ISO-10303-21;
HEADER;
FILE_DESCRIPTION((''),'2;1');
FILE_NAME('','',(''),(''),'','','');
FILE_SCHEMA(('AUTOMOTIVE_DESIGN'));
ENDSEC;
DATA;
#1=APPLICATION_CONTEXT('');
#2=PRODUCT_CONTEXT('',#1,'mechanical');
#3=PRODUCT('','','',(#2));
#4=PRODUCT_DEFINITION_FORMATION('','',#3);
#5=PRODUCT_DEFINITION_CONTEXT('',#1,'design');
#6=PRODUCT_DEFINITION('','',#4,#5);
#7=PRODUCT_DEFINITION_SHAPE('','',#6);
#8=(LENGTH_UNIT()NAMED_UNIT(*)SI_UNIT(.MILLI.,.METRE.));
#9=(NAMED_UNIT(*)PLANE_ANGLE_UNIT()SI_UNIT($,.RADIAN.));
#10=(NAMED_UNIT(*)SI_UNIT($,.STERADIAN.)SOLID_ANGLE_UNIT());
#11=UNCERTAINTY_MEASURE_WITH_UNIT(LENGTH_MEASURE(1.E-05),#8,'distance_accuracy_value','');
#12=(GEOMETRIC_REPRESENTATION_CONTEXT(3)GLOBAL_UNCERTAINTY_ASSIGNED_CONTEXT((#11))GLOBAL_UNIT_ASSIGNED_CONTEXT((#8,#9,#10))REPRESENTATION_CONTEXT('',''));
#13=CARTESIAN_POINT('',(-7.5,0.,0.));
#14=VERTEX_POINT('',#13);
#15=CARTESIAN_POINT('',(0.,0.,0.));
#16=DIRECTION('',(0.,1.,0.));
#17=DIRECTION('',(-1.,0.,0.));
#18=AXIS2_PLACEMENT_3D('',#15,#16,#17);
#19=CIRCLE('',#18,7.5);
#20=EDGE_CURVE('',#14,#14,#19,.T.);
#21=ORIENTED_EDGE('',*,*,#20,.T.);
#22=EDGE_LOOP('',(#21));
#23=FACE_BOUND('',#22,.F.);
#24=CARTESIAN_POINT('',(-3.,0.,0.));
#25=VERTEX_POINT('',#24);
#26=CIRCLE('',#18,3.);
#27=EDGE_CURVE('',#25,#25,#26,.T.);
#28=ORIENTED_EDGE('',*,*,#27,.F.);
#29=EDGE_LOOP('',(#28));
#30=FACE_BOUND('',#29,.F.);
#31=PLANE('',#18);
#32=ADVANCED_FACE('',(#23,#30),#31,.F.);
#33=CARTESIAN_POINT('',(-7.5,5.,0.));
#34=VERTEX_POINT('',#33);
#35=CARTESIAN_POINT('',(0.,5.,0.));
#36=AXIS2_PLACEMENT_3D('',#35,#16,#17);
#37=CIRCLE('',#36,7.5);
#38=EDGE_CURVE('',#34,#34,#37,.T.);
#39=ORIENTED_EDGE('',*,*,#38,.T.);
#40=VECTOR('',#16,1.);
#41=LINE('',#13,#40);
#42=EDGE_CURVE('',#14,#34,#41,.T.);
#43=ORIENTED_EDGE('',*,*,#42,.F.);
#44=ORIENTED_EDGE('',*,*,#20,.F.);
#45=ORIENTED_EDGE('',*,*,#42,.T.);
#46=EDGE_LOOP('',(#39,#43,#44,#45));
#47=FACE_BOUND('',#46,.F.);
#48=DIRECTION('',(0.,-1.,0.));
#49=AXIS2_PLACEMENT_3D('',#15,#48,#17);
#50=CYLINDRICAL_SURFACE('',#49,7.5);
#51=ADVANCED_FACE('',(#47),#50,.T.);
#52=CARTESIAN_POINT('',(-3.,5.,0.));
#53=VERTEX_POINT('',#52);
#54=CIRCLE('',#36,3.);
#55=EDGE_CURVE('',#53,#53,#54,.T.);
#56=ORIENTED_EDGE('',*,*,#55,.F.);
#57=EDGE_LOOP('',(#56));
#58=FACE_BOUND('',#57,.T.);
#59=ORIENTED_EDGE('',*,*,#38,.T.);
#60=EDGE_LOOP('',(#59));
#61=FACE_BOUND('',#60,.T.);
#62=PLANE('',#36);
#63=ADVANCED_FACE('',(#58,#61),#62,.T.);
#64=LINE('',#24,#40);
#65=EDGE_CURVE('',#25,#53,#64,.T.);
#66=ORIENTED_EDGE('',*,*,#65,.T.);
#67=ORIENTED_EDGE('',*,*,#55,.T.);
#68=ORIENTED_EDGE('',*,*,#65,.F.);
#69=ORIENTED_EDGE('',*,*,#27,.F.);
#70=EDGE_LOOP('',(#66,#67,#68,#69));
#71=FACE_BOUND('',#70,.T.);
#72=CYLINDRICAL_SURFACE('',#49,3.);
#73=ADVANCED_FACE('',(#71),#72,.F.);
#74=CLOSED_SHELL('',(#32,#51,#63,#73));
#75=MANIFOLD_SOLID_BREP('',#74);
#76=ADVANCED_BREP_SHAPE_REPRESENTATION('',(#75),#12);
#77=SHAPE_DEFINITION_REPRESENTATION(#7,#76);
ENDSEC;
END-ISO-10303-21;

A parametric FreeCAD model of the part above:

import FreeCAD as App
import Part
import Sketcher

V = App.Vector

doc = App.newDocument("Part")
body = doc.addObject("PartDesign::Body", "Body")

# Sketch on XZ plane
sketch1 = body.newObject("Sketcher::SketchObject", "Sketch")
sketch1.AttachmentSupport = (doc.getObject("XZ_Plane"), [""])
sketch1.MapMode = "FlatFace"
sketch1.addGeometry([
    Part.Circle(V(0, 0, 0), V(0, 0, 1), 7.5),
    Part.Circle(V(0, 0, 0), V(0, 0, 1), 3),
], False)
sketch1.addConstraint([
    Sketcher.Constraint("Coincident", 0, 3, -1, 1),
    Sketcher.Constraint("Coincident", 1, 3, -1, 1),
    Sketcher.Constraint("Diameter", 0, 15.0),
    Sketcher.Constraint("Diameter", 1, 6.0),
])
pad1 = body.newObject("PartDesign::Pad", "Pad")
pad1.Profile = sketch1
pad1.Length = 5
pad1.Reversed = True

doc.recompute()
